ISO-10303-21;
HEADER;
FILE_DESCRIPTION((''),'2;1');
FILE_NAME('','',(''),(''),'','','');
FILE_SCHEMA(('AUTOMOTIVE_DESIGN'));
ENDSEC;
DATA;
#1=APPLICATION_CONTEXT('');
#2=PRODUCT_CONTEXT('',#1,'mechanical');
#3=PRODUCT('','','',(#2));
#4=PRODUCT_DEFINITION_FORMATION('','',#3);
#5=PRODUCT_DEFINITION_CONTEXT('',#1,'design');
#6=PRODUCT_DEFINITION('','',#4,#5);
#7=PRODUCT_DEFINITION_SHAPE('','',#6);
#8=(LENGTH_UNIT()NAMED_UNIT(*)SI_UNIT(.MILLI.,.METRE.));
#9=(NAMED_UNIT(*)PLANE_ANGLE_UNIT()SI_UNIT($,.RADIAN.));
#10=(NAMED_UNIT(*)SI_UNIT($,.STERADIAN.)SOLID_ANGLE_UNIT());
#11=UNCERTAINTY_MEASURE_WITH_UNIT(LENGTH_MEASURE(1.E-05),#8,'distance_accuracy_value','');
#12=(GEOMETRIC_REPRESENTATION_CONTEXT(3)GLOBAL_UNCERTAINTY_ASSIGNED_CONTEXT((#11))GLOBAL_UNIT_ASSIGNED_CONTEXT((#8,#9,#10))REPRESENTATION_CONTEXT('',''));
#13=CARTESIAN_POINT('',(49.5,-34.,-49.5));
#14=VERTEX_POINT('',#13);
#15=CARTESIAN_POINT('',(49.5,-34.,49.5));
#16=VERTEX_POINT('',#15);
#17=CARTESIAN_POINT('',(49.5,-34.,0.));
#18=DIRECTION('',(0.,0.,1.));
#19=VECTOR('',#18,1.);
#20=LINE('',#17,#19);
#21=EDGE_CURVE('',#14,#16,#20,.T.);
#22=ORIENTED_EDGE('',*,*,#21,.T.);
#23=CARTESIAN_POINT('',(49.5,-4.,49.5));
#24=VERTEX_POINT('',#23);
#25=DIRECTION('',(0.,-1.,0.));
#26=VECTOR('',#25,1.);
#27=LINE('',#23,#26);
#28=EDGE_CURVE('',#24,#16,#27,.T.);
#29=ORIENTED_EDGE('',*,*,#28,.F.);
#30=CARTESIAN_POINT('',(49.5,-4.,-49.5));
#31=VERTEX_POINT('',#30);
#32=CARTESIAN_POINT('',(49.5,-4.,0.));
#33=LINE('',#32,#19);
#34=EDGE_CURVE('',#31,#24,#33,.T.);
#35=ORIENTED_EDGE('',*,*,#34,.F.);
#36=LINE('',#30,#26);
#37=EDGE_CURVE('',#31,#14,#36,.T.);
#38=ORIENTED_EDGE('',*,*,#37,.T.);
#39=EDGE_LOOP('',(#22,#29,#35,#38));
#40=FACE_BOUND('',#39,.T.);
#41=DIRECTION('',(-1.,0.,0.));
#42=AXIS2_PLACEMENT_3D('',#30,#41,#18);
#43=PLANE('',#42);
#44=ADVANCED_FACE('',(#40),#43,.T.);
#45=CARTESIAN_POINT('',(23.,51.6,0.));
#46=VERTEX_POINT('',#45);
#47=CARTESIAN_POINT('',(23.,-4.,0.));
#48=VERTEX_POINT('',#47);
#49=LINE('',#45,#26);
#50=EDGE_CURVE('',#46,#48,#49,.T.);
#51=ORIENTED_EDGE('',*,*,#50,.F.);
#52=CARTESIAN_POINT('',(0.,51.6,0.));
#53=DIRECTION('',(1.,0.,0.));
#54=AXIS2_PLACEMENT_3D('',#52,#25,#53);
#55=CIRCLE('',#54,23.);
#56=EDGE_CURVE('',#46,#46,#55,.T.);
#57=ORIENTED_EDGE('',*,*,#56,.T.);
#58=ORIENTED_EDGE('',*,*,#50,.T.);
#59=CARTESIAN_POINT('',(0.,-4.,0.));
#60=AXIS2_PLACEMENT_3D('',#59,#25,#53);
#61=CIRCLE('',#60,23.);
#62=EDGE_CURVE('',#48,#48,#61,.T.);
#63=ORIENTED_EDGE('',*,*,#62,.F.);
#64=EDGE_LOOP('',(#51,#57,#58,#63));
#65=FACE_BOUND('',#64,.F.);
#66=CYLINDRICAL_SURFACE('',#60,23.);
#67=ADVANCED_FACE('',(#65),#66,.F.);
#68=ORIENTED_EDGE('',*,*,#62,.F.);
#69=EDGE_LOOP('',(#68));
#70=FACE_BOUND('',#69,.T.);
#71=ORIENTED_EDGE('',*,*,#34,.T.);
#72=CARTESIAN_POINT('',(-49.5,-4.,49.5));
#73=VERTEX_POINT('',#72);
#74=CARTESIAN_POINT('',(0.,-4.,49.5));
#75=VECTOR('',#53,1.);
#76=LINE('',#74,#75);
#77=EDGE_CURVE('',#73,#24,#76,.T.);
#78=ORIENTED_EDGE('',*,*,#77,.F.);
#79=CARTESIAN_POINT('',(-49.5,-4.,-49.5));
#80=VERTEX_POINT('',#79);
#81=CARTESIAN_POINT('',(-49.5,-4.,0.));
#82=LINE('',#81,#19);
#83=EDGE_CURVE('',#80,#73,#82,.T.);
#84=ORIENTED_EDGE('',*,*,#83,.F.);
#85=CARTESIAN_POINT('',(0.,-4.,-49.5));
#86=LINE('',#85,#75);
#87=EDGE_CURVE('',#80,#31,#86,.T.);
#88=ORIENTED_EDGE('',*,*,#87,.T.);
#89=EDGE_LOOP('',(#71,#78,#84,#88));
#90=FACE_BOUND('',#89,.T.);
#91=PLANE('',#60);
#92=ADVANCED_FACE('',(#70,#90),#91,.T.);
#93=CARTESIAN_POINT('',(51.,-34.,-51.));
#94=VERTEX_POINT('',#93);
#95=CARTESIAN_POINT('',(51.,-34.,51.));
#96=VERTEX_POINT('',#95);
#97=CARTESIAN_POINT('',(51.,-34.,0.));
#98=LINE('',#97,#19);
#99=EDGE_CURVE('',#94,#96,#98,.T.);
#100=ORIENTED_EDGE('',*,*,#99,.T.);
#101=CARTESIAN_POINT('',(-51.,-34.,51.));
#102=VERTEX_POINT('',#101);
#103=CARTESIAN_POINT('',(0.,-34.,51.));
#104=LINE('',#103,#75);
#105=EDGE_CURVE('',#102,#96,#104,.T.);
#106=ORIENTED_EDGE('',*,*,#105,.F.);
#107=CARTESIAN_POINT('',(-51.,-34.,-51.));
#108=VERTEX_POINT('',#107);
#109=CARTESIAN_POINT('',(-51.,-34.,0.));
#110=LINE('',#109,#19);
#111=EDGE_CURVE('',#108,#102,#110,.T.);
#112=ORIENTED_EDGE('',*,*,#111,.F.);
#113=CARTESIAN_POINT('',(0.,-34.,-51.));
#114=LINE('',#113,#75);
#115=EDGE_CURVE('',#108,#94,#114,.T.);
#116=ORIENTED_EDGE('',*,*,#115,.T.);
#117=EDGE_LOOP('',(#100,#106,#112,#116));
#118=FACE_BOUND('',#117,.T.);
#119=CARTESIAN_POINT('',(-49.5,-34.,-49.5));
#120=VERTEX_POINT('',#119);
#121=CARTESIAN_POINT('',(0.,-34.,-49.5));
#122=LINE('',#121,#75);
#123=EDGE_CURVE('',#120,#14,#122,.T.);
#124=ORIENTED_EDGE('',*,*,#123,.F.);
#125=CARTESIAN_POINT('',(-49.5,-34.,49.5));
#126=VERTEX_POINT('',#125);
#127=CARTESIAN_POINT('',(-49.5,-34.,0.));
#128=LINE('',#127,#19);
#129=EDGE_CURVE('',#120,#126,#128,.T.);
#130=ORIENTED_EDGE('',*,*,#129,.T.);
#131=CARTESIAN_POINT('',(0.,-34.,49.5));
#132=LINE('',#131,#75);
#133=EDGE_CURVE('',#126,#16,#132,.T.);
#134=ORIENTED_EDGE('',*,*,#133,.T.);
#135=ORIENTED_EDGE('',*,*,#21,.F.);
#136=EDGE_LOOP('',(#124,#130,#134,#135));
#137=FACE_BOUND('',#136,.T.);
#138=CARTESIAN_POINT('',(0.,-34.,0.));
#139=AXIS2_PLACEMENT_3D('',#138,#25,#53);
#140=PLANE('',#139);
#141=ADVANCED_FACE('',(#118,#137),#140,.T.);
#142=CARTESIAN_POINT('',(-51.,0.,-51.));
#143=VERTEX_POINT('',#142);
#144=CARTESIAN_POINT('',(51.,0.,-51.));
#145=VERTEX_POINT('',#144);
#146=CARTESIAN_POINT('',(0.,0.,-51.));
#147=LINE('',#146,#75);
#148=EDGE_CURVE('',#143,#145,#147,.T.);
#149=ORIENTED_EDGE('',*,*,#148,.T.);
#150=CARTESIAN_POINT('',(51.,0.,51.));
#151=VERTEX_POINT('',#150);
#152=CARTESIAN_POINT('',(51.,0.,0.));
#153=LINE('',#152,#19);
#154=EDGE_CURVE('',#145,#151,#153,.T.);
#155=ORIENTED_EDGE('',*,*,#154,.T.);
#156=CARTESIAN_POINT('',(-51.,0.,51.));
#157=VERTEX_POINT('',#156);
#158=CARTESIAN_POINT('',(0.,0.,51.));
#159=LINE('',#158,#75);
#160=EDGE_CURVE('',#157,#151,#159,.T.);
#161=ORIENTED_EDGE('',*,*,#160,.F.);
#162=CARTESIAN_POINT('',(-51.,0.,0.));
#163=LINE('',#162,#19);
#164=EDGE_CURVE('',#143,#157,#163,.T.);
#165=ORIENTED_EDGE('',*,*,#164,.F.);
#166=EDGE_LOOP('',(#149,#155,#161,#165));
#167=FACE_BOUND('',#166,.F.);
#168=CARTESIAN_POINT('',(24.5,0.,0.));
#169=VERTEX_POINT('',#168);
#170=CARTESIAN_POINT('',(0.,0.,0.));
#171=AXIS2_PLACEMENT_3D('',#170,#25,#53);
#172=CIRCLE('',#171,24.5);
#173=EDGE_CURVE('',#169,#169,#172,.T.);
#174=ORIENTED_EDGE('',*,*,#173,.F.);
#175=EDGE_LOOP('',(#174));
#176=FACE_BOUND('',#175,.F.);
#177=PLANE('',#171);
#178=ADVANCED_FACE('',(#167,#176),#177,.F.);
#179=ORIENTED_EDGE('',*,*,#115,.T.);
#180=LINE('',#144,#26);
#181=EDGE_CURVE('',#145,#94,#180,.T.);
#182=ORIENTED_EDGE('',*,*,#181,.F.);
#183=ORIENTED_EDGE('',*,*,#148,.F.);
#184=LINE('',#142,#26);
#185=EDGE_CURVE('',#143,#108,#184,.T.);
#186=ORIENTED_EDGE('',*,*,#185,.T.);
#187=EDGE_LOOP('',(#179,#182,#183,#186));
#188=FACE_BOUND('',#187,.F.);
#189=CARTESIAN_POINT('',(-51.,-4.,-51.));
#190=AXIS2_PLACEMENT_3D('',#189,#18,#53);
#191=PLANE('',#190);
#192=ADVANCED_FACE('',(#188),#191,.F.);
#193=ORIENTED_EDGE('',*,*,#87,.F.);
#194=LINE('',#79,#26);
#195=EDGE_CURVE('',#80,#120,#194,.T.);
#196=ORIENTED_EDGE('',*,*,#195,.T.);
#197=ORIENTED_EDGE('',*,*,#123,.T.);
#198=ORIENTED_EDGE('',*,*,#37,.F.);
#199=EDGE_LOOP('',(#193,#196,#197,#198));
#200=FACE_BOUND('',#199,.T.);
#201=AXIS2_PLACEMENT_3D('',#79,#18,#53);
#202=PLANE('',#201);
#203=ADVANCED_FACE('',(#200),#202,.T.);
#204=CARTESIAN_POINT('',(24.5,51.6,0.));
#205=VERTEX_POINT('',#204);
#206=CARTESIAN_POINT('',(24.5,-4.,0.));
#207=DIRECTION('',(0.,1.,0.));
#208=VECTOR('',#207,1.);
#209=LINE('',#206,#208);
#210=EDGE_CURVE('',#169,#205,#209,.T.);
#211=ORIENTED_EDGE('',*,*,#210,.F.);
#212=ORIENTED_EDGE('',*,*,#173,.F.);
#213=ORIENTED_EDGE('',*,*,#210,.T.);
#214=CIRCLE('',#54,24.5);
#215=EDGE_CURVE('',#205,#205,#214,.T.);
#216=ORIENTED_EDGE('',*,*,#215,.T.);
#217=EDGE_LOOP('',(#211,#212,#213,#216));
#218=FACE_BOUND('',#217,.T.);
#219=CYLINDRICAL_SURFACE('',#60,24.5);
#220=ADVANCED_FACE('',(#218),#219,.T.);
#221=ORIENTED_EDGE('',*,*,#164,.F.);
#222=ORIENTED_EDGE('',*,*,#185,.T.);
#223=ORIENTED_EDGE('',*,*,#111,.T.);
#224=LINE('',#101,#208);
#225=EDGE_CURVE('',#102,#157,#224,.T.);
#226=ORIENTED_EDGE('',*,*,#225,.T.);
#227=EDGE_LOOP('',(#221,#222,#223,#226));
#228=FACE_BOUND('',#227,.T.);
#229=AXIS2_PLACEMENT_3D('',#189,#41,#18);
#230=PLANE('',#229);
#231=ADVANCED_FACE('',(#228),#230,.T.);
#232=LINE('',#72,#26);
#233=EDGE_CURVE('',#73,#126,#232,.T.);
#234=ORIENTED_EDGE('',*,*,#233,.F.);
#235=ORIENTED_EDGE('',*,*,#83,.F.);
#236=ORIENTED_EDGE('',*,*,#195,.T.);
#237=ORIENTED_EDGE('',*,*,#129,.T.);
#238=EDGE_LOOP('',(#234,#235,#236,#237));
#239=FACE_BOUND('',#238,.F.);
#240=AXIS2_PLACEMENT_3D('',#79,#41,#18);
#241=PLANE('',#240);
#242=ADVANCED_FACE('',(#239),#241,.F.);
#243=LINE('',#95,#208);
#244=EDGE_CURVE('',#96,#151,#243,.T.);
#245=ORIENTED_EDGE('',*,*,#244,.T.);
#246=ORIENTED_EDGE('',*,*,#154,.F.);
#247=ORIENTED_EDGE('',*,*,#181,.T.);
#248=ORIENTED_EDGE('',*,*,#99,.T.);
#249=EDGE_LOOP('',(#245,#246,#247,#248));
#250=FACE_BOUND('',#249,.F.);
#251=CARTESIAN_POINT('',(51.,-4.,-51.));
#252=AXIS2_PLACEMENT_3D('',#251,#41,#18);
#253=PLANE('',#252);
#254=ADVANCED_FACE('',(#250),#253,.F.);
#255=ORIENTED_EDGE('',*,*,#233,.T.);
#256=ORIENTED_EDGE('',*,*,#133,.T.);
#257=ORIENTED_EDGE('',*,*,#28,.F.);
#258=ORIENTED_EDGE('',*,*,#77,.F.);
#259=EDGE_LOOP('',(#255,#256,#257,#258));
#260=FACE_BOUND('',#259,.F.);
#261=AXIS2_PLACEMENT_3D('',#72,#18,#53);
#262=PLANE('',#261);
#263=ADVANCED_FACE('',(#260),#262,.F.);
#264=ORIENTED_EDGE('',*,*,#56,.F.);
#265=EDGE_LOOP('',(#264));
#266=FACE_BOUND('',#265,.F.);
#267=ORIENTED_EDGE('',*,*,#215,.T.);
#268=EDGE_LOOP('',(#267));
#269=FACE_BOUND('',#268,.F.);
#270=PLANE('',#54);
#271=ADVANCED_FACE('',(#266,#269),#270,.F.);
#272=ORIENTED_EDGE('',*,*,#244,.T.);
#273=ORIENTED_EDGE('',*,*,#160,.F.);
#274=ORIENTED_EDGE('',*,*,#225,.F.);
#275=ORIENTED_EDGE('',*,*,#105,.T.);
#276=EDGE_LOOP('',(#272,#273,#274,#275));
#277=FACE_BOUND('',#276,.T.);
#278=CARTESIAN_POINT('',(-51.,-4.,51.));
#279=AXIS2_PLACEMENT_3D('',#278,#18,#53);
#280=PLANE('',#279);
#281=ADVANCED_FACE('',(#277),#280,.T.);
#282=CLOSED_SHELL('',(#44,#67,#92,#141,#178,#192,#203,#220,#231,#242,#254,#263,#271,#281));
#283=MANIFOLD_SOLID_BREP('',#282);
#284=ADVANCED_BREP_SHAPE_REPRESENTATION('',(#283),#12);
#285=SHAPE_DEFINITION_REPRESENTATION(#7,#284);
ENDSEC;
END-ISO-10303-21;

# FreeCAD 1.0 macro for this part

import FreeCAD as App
import Part
import Sketcher
from FreeCAD import Vector

doc = App.newDocument("Part")
body = doc.addObject("PartDesign::Body", "Body")

# Sketch on XZ plane
sketch1 = body.newObject("Sketcher::SketchObject", "Sketch")
sketch1.AttachmentSupport = (doc.getObject("XZ_Plane"), [""])
sketch1.MapMode = "FlatFace"
sketch1.addGeometry(Part.LineSegment(Vector(-51, 51, 0), Vector(-51, -51, 0)), False)
sketch1.addGeometry(Part.LineSegment(Vector(-51, -51, 0), Vector(51, -51, 0)), False)
sketch1.addGeometry(Part.LineSegment(Vector(51, -51, 0), Vector(51, 51, 0)), False)
sketch1.addGeometry(Part.LineSegment(Vector(51, 51, 0), Vector(-51, 51, 0)), False)
sketch1.addConstraint(Sketcher.Constraint("Coincident", 0, 2, 1, 1))
sketch1.addConstraint(Sketcher.Constraint("Coincident", 1, 2, 2, 1))
sketch1.addConstraint(Sketcher.Constraint("Coincident", 2, 2, 3, 1))
sketch1.addConstraint(Sketcher.Constraint("Coincident", 3, 2, 0, 1))
sketch1.addConstraint(Sketcher.Constraint("Vertical", 0))
sketch1.addConstraint(Sketcher.Constraint("Horizontal", 1))
sketch1.addConstraint(Sketcher.Constraint("Vertical", 2))
sketch1.addConstraint(Sketcher.Constraint("Horizontal", 3))
sketch1.addConstraint(Sketcher.Constraint("Symmetric", 0, 2, 2, 2, -1, 1))
sketch1.addConstraint(Sketcher.Constraint("Equal", 3, 0))
sketch1.addConstraint(Sketcher.Constraint("DistanceX", 1, 1, 1, 2, 102.0))
pad1 = body.newObject("PartDesign::Pad", "Pad")
pad1.Profile = sketch1
pad1.Length = 4

# Sketch on XZ plane
sketch2 = body.newObject("Sketcher::SketchObject", "Sketch001")
sketch2.AttachmentSupport = (doc.getObject("XZ_Plane"), [""])
sketch2.MapMode = "FlatFace"
sketch2.AttachmentOffset = App.Placement(Vector(0, 0, 4), App.Rotation())
sketch2.addGeometry(Part.LineSegment(Vector(-51, 51, 0), Vector(-51, -51, 0)), False)
sketch2.addGeometry(Part.LineSegment(Vector(-51, -51, 0), Vector(51, -51, 0)), False)
sketch2.addGeometry(Part.LineSegment(Vector(51, -51, 0), Vector(51, 51, 0)), False)
sketch2.addGeometry(Part.LineSegment(Vector(51, 51, 0), Vector(-51, 51, 0)), False)
sketch2.addGeometry(Part.LineSegment(Vector(49.5, -49.5, 0), Vector(-49.5, -49.5, 0)), False)
sketch2.addGeometry(Part.LineSegment(Vector(-49.5, -49.5, 0), Vector(-49.5, 49.5, 0)), False)
sketch2.addGeometry(Part.LineSegment(Vector(-49.5, 49.5, 0), Vector(49.5, 49.5, 0)), False)
sketch2.addGeometry(Part.LineSegment(Vector(49.5, 49.5, 0), Vector(49.5, -49.5, 0)), False)
sketch2.addConstraint(Sketcher.Constraint("Coincident", 0, 2, 1, 1))
sketch2.addConstraint(Sketcher.Constraint("Coincident", 1, 2, 2, 1))
sketch2.addConstraint(Sketcher.Constraint("Coincident", 2, 2, 3, 1))
sketch2.addConstraint(Sketcher.Constraint("Coincident", 3, 2, 0, 1))
sketch2.addConstraint(Sketcher.Constraint("Coincident", 4, 2, 5, 1))
sketch2.addConstraint(Sketcher.Constraint("Coincident", 5, 2, 6, 1))
sketch2.addConstraint(Sketcher.Constraint("Coincident", 6, 2, 7, 1))
sketch2.addConstraint(Sketcher.Constraint("Coincident", 7, 2, 4, 1))
sketch2.addConstraint(Sketcher.Constraint("Vertical", 0))
sketch2.addConstraint(Sketcher.Constraint("Horizontal", 1))
sketch2.addConstraint(Sketcher.Constraint("Vertical", 2))
sketch2.addConstraint(Sketcher.Constraint("Horizontal", 3))
sketch2.addConstraint(Sketcher.Constraint("Horizontal", 4))
sketch2.addConstraint(Sketcher.Constraint("Vertical", 5))
sketch2.addConstraint(Sketcher.Constraint("Horizontal", 6))
sketch2.addConstraint(Sketcher.Constraint("Vertical", 7))
sketch2.addConstraint(Sketcher.Constraint("Symmetric", 0, 2, 2, 2, -1, 1))
sketch2.addConstraint(Sketcher.Constraint("Symmetric", 4, 2, 6, 2, -1, 1))
sketch2.addConstraint(Sketcher.Constraint("Equal", 3, 0))
sketch2.addConstraint(Sketcher.Constraint("Equal", 6, 5))
sketch2.addConstraint(Sketcher.Constraint("DistanceX", 1, 1, 1, 2, 102.0))
sketch2.addConstraint(Sketcher.Constraint("DistanceX", 4, 2, 4, 1, 99.0))
pad2 = body.newObject("PartDesign::Pad", "Pad001")
pad2.Profile = sketch2
pad2.Type = "TwoLengths"
pad2.Length = 30
pad2.Length2 = 4

# Sketch on XZ plane
sketch3 = body.newObject("Sketcher::SketchObject", "Sketch002")
sketch3.AttachmentSupport = (doc.getObject("XZ_Plane"), [""])
sketch3.MapMode = "FlatFace"
sketch3.AttachmentOffset = App.Placement(Vector(0, 0, 4), App.Rotation())
sketch3.addGeometry(Part.Circle(Vector(0, 0, 0), Vector(0, 0, 1), 23), False)
sketch3.addConstraint(Sketcher.Constraint("Coincident", 0, 3, -1, 1))
sketch3.addConstraint(Sketcher.Constraint("Diameter", 0, 46.0))
pocket1 = body.newObject("PartDesign::Pocket", "Pocket")
pocket1.Profile = sketch3
pocket1.Length = 25

# Sketch on XZ plane
sketch4 = body.newObject("Sketcher::SketchObject", "Sketch003")
sketch4.AttachmentSupport = (doc.getObject("XZ_Plane"), [""])
sketch4.MapMode = "FlatFace"
sketch4.AttachmentOffset = App.Placement(Vector(0, 0, 4), App.Rotation())
sketch4.addGeometry(Part.Circle(Vector(0, 0, 0), Vector(0, 0, 1), 24.5), False)
sketch4.addGeometry(Part.Circle(Vector(0, 0, 0), Vector(0, 0, 1), 23), False)
sketch4.addConstraint(Sketcher.Constraint("Coincident", 0, 3, -1, 1))
sketch4.addConstraint(Sketcher.Constraint("Coincident", 1, 3, -1, 1))
sketch4.addConstraint(Sketcher.Constraint("Diameter", 0, 49.0))
sketch4.addConstraint(Sketcher.Constraint("Diameter", 1, 46.0))
pad3 = body.newObject("PartDesign::Pad", "Pad002")
pad3.Profile = sketch4
pad3.Length = 55.6
pad3.Reversed = True

doc.recompute()
